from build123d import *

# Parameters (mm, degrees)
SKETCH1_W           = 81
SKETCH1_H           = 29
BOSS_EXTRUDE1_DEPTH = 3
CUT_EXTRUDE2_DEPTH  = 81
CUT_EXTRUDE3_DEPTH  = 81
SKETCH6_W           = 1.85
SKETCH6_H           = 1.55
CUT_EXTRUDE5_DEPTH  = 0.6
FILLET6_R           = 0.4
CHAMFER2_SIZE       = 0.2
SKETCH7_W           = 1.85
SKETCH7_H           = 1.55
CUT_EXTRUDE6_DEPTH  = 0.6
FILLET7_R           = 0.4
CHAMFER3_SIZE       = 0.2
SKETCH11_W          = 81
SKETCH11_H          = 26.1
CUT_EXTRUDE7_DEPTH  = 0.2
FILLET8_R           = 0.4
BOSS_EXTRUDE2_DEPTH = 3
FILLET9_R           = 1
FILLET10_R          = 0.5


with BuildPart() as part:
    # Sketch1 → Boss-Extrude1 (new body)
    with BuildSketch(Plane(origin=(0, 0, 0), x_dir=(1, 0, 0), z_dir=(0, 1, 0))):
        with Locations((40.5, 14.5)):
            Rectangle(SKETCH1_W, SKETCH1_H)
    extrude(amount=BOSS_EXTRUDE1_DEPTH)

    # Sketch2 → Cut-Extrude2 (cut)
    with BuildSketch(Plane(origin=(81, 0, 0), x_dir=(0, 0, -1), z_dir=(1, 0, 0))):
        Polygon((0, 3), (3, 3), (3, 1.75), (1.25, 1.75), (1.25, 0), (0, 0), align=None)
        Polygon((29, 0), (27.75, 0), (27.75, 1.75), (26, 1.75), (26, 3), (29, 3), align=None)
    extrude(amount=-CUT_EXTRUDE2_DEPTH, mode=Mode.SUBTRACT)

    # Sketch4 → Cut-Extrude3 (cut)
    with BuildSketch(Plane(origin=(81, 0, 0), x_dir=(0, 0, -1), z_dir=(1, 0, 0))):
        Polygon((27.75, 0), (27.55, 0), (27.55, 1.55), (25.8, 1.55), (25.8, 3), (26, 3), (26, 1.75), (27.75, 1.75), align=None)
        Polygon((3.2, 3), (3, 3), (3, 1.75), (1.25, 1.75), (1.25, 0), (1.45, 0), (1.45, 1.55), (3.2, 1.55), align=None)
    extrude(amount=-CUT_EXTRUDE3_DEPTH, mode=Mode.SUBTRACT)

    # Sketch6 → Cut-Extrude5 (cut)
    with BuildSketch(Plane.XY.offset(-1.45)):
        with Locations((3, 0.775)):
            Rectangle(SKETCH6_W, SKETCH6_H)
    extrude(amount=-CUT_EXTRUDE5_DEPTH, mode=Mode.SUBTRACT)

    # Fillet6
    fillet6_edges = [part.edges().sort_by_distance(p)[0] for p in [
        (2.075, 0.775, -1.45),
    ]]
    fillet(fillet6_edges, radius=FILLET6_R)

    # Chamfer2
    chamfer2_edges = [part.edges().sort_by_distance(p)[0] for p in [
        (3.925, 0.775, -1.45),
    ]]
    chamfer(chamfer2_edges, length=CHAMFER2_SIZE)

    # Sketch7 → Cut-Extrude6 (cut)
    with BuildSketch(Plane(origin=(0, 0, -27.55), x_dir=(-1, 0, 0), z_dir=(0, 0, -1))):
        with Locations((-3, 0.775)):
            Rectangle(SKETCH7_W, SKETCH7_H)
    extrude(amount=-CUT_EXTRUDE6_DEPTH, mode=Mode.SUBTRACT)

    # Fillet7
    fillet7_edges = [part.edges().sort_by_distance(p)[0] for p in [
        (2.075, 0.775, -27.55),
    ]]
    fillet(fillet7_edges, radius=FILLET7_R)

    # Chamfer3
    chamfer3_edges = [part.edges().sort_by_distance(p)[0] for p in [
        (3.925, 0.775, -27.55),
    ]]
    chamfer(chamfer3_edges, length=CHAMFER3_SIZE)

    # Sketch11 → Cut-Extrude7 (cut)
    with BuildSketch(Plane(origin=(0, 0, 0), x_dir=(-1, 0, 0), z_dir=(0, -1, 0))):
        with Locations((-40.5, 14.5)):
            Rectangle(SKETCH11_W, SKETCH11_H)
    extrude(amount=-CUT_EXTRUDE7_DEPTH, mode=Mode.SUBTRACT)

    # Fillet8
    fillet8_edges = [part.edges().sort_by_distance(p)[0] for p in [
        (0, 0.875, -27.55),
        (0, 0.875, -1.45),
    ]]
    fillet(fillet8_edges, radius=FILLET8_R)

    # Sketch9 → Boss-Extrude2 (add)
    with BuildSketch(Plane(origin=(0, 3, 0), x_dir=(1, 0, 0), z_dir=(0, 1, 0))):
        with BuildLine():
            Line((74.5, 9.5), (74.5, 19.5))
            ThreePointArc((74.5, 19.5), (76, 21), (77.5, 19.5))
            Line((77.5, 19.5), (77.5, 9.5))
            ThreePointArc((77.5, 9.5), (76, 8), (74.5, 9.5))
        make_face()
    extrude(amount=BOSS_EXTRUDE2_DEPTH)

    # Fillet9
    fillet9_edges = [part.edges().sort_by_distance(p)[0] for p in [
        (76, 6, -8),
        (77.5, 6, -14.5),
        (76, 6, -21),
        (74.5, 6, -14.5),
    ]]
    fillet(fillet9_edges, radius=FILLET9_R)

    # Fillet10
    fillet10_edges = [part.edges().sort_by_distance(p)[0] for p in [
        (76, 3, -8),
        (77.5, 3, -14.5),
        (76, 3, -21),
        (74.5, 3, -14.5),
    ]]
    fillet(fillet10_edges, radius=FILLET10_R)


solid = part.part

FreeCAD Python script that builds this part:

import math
import FreeCAD as App
import Part
import Sketcher
from FreeCAD import Vector
Q = App.Units.Quantity


def edges_at(feature, points):
    """Names of the edges that pass closest to the given points."""
    edges = feature.Shape.Edges
    near = lambda p: min(range(len(edges)), key=lambda i: edges[i].distToShape(Part.Vertex(*p))[0])
    return sorted({f"Edge{near(p) + 1}" for p in points})

doc = App.newDocument("Part")
params = doc.addObject("Spreadsheet::Sheet", "Params")
for row, (alias, value) in enumerate([
    ("sketch1_width", "81 mm"),
    ("sketch1_height", "29 mm"),
    ("pad1_length", "3 mm"),
    ("sketch2_width", "3 mm"),
    ("sketch2_width2", "1.75 mm"),
    ("pocket1_length", "81 mm"),
    ("sketch3_height", "0.2 mm"),
    ("sketch3_width", "1.75 mm"),
    ("sketch3_width2", "1.45 mm"),
    ("pocket2_length", "81 mm"),
    ("sketch4_width", "1.85 mm"),
    ("sketch4_height", "1.55 mm"),
    ("pocket3_length", "0.6 mm"),
    ("fillet_radius", "0.4 mm"),
    ("chamfer_size", "0.2 mm"),
    ("sketch5_width", "1.85 mm"),
    ("sketch5_height", "1.55 mm"),
    ("pocket4_length", "0.6 mm"),
    ("fillet2_radius", "0.4 mm"),
    ("chamfer2_size", "0.2 mm"),
    ("sketch6_width", "81 mm"),
    ("sketch6_height", "26.1 mm"),
    ("pocket5_length", "0.2 mm"),
    ("fillet3_radius", "0.4 mm"),
    ("sketch7_radius", "1.5 mm"),
    ("sketch7_height", "10 mm"),
    ("pad2_length", "3 mm"),
    ("fillet4_radius", "1 mm"),
    ("fillet5_radius", "0.5 mm"),
], start=1):
    params.set(f"A{row}", alias)
    params.set(f"B{row}", "=" + value)
    params.setAlias(f"B{row}", alias)

body = doc.addObject("PartDesign::Body", "Body")

# Sketch on XZ plane
sketch1 = doc.addObject("Sketcher::SketchObject", "Sketch")
body.addObject(sketch1)
sketch1.AttachmentSupport = (doc.XZ_Plane, [""])
sketch1.MapMode = "FlatFace"
sketch1.addGeometry(Part.LineSegment(Vector(0, -29, 0), Vector(0, 0, 0)), False)
sketch1.addGeometry(Part.LineSegment(Vector(0, 0, 0), Vector(81, 0, 0)), False)
sketch1.addGeometry(Part.LineSegment(Vector(81, 0, 0), Vector(81, -29, 0)), False)
sketch1.addGeometry(Part.LineSegment(Vector(81, -29, 0), Vector(0, -29, 0)), False)
sketch1.addConstraint(Sketcher.Constraint("Coincident", 0, 2, 1, 1))
sketch1.addConstraint(Sketcher.Constraint("Coincident", 1, 2, 2, 1))
sketch1.addConstraint(Sketcher.Constraint("Coincident", 2, 2, 3, 1))
sketch1.addConstraint(Sketcher.Constraint("Coincident", 3, 2, 0, 1))
sketch1.addConstraint(Sketcher.Constraint("Vertical", 0))
sketch1.addConstraint(Sketcher.Constraint("Horizontal", 1))
sketch1.addConstraint(Sketcher.Constraint("Vertical", 2))
sketch1.addConstraint(Sketcher.Constraint("Horizontal", 3))
sketch1.addConstraint(Sketcher.Constraint("Coincident", 0, 2, -1, 1))
sketch1.addConstraint(Sketcher.Constraint("DistanceX", 1, 1, 1, 2, Q("81 mm")))
sketch1.addConstraint(Sketcher.Constraint("DistanceY", 0, 1, 0, 2, Q("29 mm")))
sketch1.setExpression("Constraints[9]", "Params.sketch1_width")
sketch1.setExpression("Constraints[10]", "Params.sketch1_height")
pad1 = doc.addObject("PartDesign::Pad", "Pad")
body.addObject(pad1)
pad1.Profile = sketch1
pad1.setExpression("Length", "Params.pad1_length")
pad1.Reversed = True

# Sketch on YZ plane
sketch2 = doc.addObject("Sketcher::SketchObject", "Sketch001")
body.addObject(sketch2)
sketch2.AttachmentSupport = (doc.YZ_Plane, [""])
sketch2.MapMode = "FlatFace"
sketch2.AttachmentOffset = App.Placement(Vector(0, 0, 81), App.Rotation())
sketch2.addGeometry(Part.LineSegment(Vector(3, -3, 0), Vector(3, 0, 0)), False)
sketch2.addGeometry(Part.LineSegment(Vector(3, 0, 0), Vector(0, 0, 0)), False)
sketch2.addGeometry(Part.LineSegment(Vector(0, 0, 0), Vector(0, -1.25, 0)), False)
sketch2.addGeometry(Part.LineSegment(Vector(0, -1.25, 0), Vector(1.75, -1.25, 0)), False)
sketch2.addGeometry(Part.LineSegment(Vector(1.75, -1.25, 0), Vector(1.75, -3, 0)), False)
sketch2.addGeometry(Part.LineSegment(Vector(1.75, -3, 0), Vector(3, -3, 0)), False)
sketch2.addGeometry(Part.LineSegment(Vector(0, -27.75, 0), Vector(0, -29, 0)), False)
sketch2.addGeometry(Part.LineSegment(Vector(0, -29, 0), Vector(3, -29, 0)), False)
sketch2.addGeometry(Part.LineSegment(Vector(3, -29, 0), Vector(3, -26, 0)), False)
sketch2.addGeometry(Part.LineSegment(Vector(3, -26, 0), Vector(1.75, -26, 0)), False)
sketch2.addGeometry(Part.LineSegment(Vector(1.75, -26, 0), Vector(1.75, -27.75, 0)), False)
sketch2.addGeometry(Part.LineSegment(Vector(1.75, -27.75, 0), Vector(0, -27.75, 0)), False)
sketch2.addConstraint(Sketcher.Constraint("Coincident", 0, 2, 1, 1))
sketch2.addConstraint(Sketcher.Constraint("Coincident", 1, 2, 2, 1))
sketch2.addConstraint(Sketcher.Constraint("Coincident", 2, 2, 3, 1))
sketch2.addConstraint(Sketcher.Constraint("Coincident", 3, 2, 4, 1))
sketch2.addConstraint(Sketcher.Constraint("Coincident", 4, 2, 5, 1))
sketch2.addConstraint(Sketcher.Constraint("Coincident", 5, 2, 0, 1))
sketch2.addConstraint(Sketcher.Constraint("Coincident", 6, 2, 7, 1))
sketch2.addConstraint(Sketcher.Constraint("Coincident", 7, 2, 8, 1))
sketch2.addConstraint(Sketcher.Constraint("Coincident", 8, 2, 9, 1))
sketch2.addConstraint(Sketcher.Constraint("Coincident", 9, 2, 10, 1))
sketch2.addConstraint(Sketcher.Constraint("Coincident", 10, 2, 11, 1))
sketch2.addConstraint(Sketcher.Constraint("Coincident", 11, 2, 6, 1))
sketch2.addConstraint(Sketcher.Constraint("Vertical", 0))
sketch2.addConstraint(Sketcher.Constraint("Horizontal", 1))
sketch2.addConstraint(Sketcher.Constraint("Vertical", 2))
sketch2.addConstraint(Sketcher.Constraint("Horizontal", 3))
sketch2.addConstraint(Sketcher.Constraint("Vertical", 4))
sketch2.addConstraint(Sketcher.Constraint("Horizontal", 5))
sketch2.addConstraint(Sketcher.Constraint("Vertical", 6))
sketch2.addConstraint(Sketcher.Constraint("Horizontal", 7))
sketch2.addConstraint(Sketcher.Constraint("Vertical", 8))
sketch2.addConstraint(Sketcher.Constraint("Horizontal", 9))
sketch2.addConstraint(Sketcher.Constraint("Vertical", 10))
sketch2.addConstraint(Sketcher.Constraint("Horizontal", 11))
sketch2.addConstraint(Sketcher.Constraint("Coincident", 1, 2, -1, 1))
sketch2.addConstraint(Sketcher.Constraint("PointOnObject", 6, 2, -2))
sketch2.addConstraint(Sketcher.Constraint("Vertical", 5, 2, 7, 2))
sketch2.addConstraint(Sketcher.Constraint("Vertical", 4, 2, 9, 2))
sketch2.addConstraint(Sketcher.Constraint("Equal", 7, 0))
sketch2.addConstraint(Sketcher.Constraint("Equal", 9, 2))
sketch2.addConstraint(Sketcher.Constraint("Equal", 2, 6))
sketch2.addConstraint(Sketcher.Constraint("Equal", 0, 8))
sketch2.addConstraint(Sketcher.Constraint("DistanceX", 1, 2, 1, 1, Q("3 mm")))
sketch2.addConstraint(Sketcher.Constraint("DistanceY", 6, 2, -1, 1, Q("29 mm")))
sketch2.addConstraint(Sketcher.Constraint("DistanceX", 3, 1, 3, 2, Q("1.75 mm")))
sketch2.setExpression("Constraints[32]", "Params.sketch2_width")
sketch2.setExpression("Constraints[34]", "Params.sketch2_width2")
pocket1 = doc.addObject("PartDesign::Pocket", "Pocket")
body.addObject(pocket1)
pocket1.Profile = sketch2
pocket1.setExpression("Length", "Params.pocket1_length")

# Sketch on YZ plane
sketch3 = doc.addObject("Sketcher::SketchObject", "Sketch002")
body.addObject(sketch3)
sketch3.AttachmentSupport = (doc.YZ_Plane, [""])
sketch3.MapMode = "FlatFace"
sketch3.AttachmentOffset = App.Placement(Vector(0, 0, 81), App.Rotation())
sketch3.addGeometry(Part.LineSegment(Vector(0, -27.55, 0), Vector(0, -27.75, 0)), False)
sketch3.addGeometry(Part.LineSegment(Vector(0, -27.75, 0), Vector(1.75, -27.75, 0)), False)
sketch3.addGeometry(Part.LineSegment(Vector(1.75, -27.75, 0), Vector(1.75, -26, 0)), False)
sketch3.addGeometry(Part.LineSegment(Vector(1.75, -26, 0), Vector(3, -26, 0)), False)
sketch3.addGeometry(Part.LineSegment(Vector(3, -26, 0), Vector(3, -25.8, 0)), False)
sketch3.addGeometry(Part.LineSegment(Vector(3, -25.8, 0), Vector(1.55, -25.8, 0)), False)
sketch3.addGeometry(Part.LineSegment(Vector(1.55, -25.8, 0), Vector(1.55, -27.55, 0)), False)
sketch3.addGeometry(Part.LineSegment(Vector(1.55, -27.55, 0), Vector(0, -27.55, 0)), False)
sketch3.addGeometry(Part.LineSegment(Vector(3, -3.2, 0), Vector(3, -3, 0)), False)
sketch3.addGeometry(Part.LineSegment(Vector(3, -3, 0), Vector(1.75, -3, 0)), False)
sketch3.addGeometry(Part.LineSegment(Vector(1.75, -3, 0), Vector(1.75, -1.25, 0)), False)
sketch3.addGeometry(Part.LineSegment(Vector(1.75, -1.25, 0), Vector(0, -1.25, 0)), False)
sketch3.addGeometry(Part.LineSegment(Vector(0, -1.25, 0), Vector(0, -1.45, 0)), False)
sketch3.addGeometry(Part.LineSegment(Vector(0, -1.45, 0), Vector(1.55, -1.45, 0)), False)
sketch3.addGeometry(Part.LineSegment(Vector(1.55, -1.45, 0), Vector(1.55, -3.2, 0)), False)
sketch3.addGeometry(Part.LineSegment(Vector(1.55, -3.2, 0), Vector(3, -3.2, 0)), False)
sketch3.addConstraint(Sketcher.Constraint("Coincident", 0, 2, 1, 1))
sketch3.addConstraint(Sketcher.Constraint("Coincident", 1, 2, 2, 1))
sketch3.addConstraint(Sketcher.Constraint("Coincident", 2, 2, 3, 1))
sketch3.addConstraint(Sketcher.Constraint("Coincident", 3, 2, 4, 1))
sketch3.addConstraint(Sketcher.Constraint("Coincident", 4, 2, 5, 1))
sketch3.addConstraint(Sketcher.Constraint("Coincident", 5, 2, 6, 1))
sketch3.addConstraint(Sketcher.Constraint("Coincident", 6, 2, 7, 1))
sketch3.addConstraint(Sketcher.Constraint("Coincident", 7, 2, 0, 1))
sketch3.addConstraint(Sketcher.Constraint("Coincident", 8, 2, 9, 1))
sketch3.addConstraint(Sketcher.Constraint("Coincident", 9, 2, 10, 1))
sketch3.addConstraint(Sketcher.Constraint("Coincident", 10, 2, 11, 1))
sketch3.addConstraint(Sketcher.Constraint("Coincident", 11, 2, 12, 1))
sketch3.addConstraint(Sketcher.Constraint("Coincident", 12, 2, 13, 1))
sketch3.addConstraint(Sketcher.Constraint("Coincident", 13, 2, 14, 1))
sketch3.addConstraint(Sketcher.Constraint("Coincident", 14, 2, 15, 1))
sketch3.addConstraint(Sketcher.Constraint("Coincident", 15, 2, 8, 1))
sketch3.addConstraint(Sketcher.Constraint("Vertical", 0))
sketch3.addConstraint(Sketcher.Constraint("Horizontal", 1))
sketch3.addConstraint(Sketcher.Constraint("Vertical", 2))
sketch3.addConstraint(Sketcher.Constraint("Horizontal", 3))
sketch3.addConstraint(Sketcher.Constraint("Vertical", 4))
sketch3.addConstraint(Sketcher.Constraint("Horizontal", 5))
sketch3.addConstraint(Sketcher.Constraint("Vertical", 6))
sketch3.addConstraint(Sketcher.Constraint("Horizontal", 7))
sketch3.addConstraint(Sketcher.Constraint("Vertical", 8))
sketch3.addConstraint(Sketcher.Constraint("Horizontal", 9))
sketch3.addConstraint(Sketcher.Constraint("Vertical", 10))
sketch3.addConstraint(Sketcher.Constraint("Horizontal", 11))
sketch3.addConstraint(Sketcher.Constraint("Vertical", 12))
sketch3.addConstraint(Sketcher.Constraint("Horizontal", 13))
sketch3.addConstraint(Sketcher.Constraint("Vertical", 14))
sketch3.addConstraint(Sketcher.Constraint("Horizontal", 15))
sketch3.addConstraint(Sketcher.Constraint("PointOnObject", 0, 2, -2))
sketch3.addConstraint(Sketcher.Constraint("PointOnObject", 11, 2, -2))
sketch3.addConstraint(Sketcher.Constraint("Vertical", 4, 2, 8, 2))
sketch3.addConstraint(Sketcher.Constraint("Vertical", 2, 2, 9, 2))
sketch3.addConstraint(Sketcher.Constraint("Vertical", 6, 2, 13, 2))
sketch3.addConstraint(Sketcher.Constraint("Equal", 11, 2))
sketch3.addConstraint(Sketcher.Constraint("Equal", 0, 4))
sketch3.addConstraint(Sketcher.Constraint("Equal", 4, 8))
sketch3.addConstraint(Sketcher.Constraint("Equal", 6, 10))
sketch3.addConstraint(Sketcher.Constraint("Equal", 8, 12))
sketch3.addConstraint(Sketcher.Constraint("DistanceY", 0, 2, 0, 1, Q("0.2 mm")))
sketch3.addConstraint(Sketcher.Constraint("DistanceY", 2, 2, -1, 1, Q("26 mm")))
sketch3.addConstraint(Sketcher.Constraint("DistanceX", -1, 1, 3, 2, Q("3 mm")))
sketch3.addConstraint(Sketcher.Constraint("DistanceY", 8, 2, -1, 1, Q("3 mm")))
sketch3.addConstraint(Sketcher.Constraint("DistanceX", 1, 1, 1, 2, Q("1.75 mm")))
sketch3.addConstraint(Sketcher.Constraint("DistanceX", 5, 2, 5, 1, Q("1.45 mm")))
sketch3.setExpression("Constraints[42]", "Params.sketch3_height")
sketch3.setExpression("Constraints[46]", "Params.sketch3_width")
sketch3.setExpression("Constraints[47]", "Params.sketch3_width2")
pocket2 = doc.addObject("PartDesign::Pocket", "Pocket001")
body.addObject(pocket2)
pocket2.Profile = sketch3
pocket2.setExpression("Length", "Params.pocket2_length")

# Sketch on XY plane
sketch4 = doc.addObject("Sketcher::SketchObject", "Sketch003")
body.addObject(sketch4)
sketch4.AttachmentSupport = (doc.XY_Plane, [""])
sketch4.MapMode = "FlatFace"
sketch4.AttachmentOffset = App.Placement(Vector(0, 0, -1.45), App.Rotation())
sketch4.addGeometry(Part.LineSegment(Vector(2.075, 1.55, 0), Vector(2.075, 0, 0)), False)
sketch4.addGeometry(Part.LineSegment(Vector(2.075, 0, 0), Vector(3.925, 0, 0)), False)
sketch4.addGeometry(Part.LineSegment(Vector(3.925, 0, 0), Vector(3.925, 1.55, 0)), False)
sketch4.addGeometry(Part.LineSegment(Vector(3.925, 1.55, 0), Vector(2.075, 1.55, 0)), False)
sketch4.addConstraint(Sketcher.Constraint("Coincident", 0, 2, 1, 1))
sketch4.addConstraint(Sketcher.Constraint("Coincident", 1, 2, 2, 1))
sketch4.addConstraint(Sketcher.Constraint("Coincident", 2, 2, 3, 1))
sketch4.addConstraint(Sketcher.Constraint("Coincident", 3, 2, 0, 1))
sketch4.addConstraint(Sketcher.Constraint("Vertical", 0))
sketch4.addConstraint(Sketcher.Constraint("Horizontal", 1))
sketch4.addConstraint(Sketcher.Constraint("Vertical", 2))
sketch4.addConstraint(Sketcher.Constraint("Horizontal", 3))
sketch4.addConstraint(Sketcher.Constraint("PointOnObject", 0, 2, -1))
sketch4.addConstraint(Sketcher.Constraint("DistanceX", 1, 1, 1, 2, Q("1.85 mm")))
sketch4.addConstraint(Sketcher.Constraint("DistanceY", 0, 2, 0, 1, Q("1.55 mm")))
sketch4.addConstraint(Sketcher.Constraint("DistanceX", -1, 1, 0, 2, Q("2.075 mm")))
sketch4.setExpression("Constraints[9]", "Params.sketch4_width")
sketch4.setExpression("Constraints[10]", "Params.sketch4_height")
pocket3 = doc.addObject("PartDesign::Pocket", "Pocket002")
body.addObject(pocket3)
pocket3.Profile = sketch4
pocket3.setExpression("Length", "Params.pocket3_length")
doc.recompute()

fillet = doc.addObject("PartDesign::Fillet", "Fillet")
body.addObject(fillet)
fillet.Base = (pocket3, edges_at(pocket3, [(2.075, 0.775, -1.45)]))
fillet.setExpression("Radius", "Params.fillet_radius")
doc.recompute()

chamfer = doc.addObject("PartDesign::Chamfer", "Chamfer")
body.addObject(chamfer)
chamfer.Base = (fillet, edges_at(fillet, [(3.925, 0.775, -1.45)]))
chamfer.setExpression("Size", "Params.chamfer_size")

# Sketch on XY plane
sketch5 = doc.addObject("Sketcher::SketchObject", "Sketch004")
body.addObject(sketch5)
sketch5.AttachmentSupport = (doc.XY_Plane, [""])
sketch5.MapMode = "FlatFace"
sketch5.AttachmentOffset = App.Placement(Vector(0, 0, -27.55), App.Rotation())
sketch5.addGeometry(Part.LineSegment(Vector(3.925, 1.55, 0), Vector(3.925, 0, 0)), False)
sketch5.addGeometry(Part.LineSegment(Vector(3.925, 0, 0), Vector(2.075, 0, 0)), False)
sketch5.addGeometry(Part.LineSegment(Vector(2.075, 0, 0), Vector(2.075, 1.55, 0)), False)
sketch5.addGeometry(Part.LineSegment(Vector(2.075, 1.55, 0), Vector(3.925, 1.55, 0)), False)
sketch5.addConstraint(Sketcher.Constraint("Coincident", 0, 2, 1, 1))
sketch5.addConstraint(Sketcher.Constraint("Coincident", 1, 2, 2, 1))
sketch5.addConstraint(Sketcher.Constraint("Coincident", 2, 2, 3, 1))
sketch5.addConstraint(Sketcher.Constraint("Coincident", 3, 2, 0, 1))
sketch5.addConstraint(Sketcher.Constraint("Vertical", 0))
sketch5.addConstraint(Sketcher.Constraint("Horizontal", 1))
sketch5.addConstraint(Sketcher.Constraint("Vertical", 2))
sketch5.addConstraint(Sketcher.Constraint("Horizontal", 3))
sketch5.addConstraint(Sketcher.Constraint("PointOnObject", 0, 2, -1))
sketch5.addConstraint(Sketcher.Constraint("DistanceX", 1, 2, 1, 1, Q("1.85 mm")))
sketch5.addConstraint(Sketcher.Constraint("DistanceY", 0, 2, 0, 1, Q("1.55 mm")))
sketch5.addConstraint(Sketcher.Constraint("DistanceX", -1, 1, 0, 2, Q("3.925 mm")))
sketch5.setExpression("Constraints[9]", "Params.sketch5_width")
sketch5.setExpression("Constraints[10]", "Params.sketch5_height")
pocket4 = doc.addObject("PartDesign::Pocket", "Pocket003")
body.addObject(pocket4)
pocket4.Profile = sketch5
pocket4.setExpression("Length", "Params.pocket4_length")
pocket4.Reversed = True
doc.recompute()

fillet2 = doc.addObject("PartDesign::Fillet", "Fillet001")
body.addObject(fillet2)
fillet2.Base = (pocket4, edges_at(pocket4, [(2.075, 0.775, -27.55)]))
fillet2.setExpression("Radius", "Params.fillet2_radius")
doc.recompute()

chamfer2 = doc.addObject("PartDesign::Chamfer", "Chamfer001")
body.addObject(chamfer2)
chamfer2.Base = (fillet2, edges_at(fillet2, [(3.925, 0.775, -27.55)]))
chamfer2.setExpression("Size", "Params.chamfer2_size")

# Sketch on XZ plane
sketch6 = doc.addObject("Sketcher::SketchObject", "Sketch005")
body.addObject(sketch6)
sketch6.AttachmentSupport = (doc.XZ_Plane, [""])
sketch6.MapMode = "FlatFace"
sketch6.addGeometry(Part.LineSegment(Vector(81, -27.55, 0), Vector(81, -1.45, 0)), False)
sketch6.addGeometry(Part.LineSegment(Vector(81, -1.45, 0), Vector(0, -1.45, 0)), False)
sketch6.addGeometry(Part.LineSegment(Vector(0, -1.45, 0), Vector(0, -27.55, 0)), False)
sketch6.addGeometry(Part.LineSegment(Vector(0, -27.55, 0), Vector(81, -27.55, 0)), False)
sketch6.addConstraint(Sketcher.Constraint("Coincident", 0, 2, 1, 1))
sketch6.addConstraint(Sketcher.Constraint("Coincident", 1, 2, 2, 1))
sketch6.addConstraint(Sketcher.Constraint("Coincident", 2, 2, 3, 1))
sketch6.addConstraint(Sketcher.Constraint("Coincident", 3, 2, 0, 1))
sketch6.addConstraint(Sketcher.Constraint("Vertical", 0))
sketch6.addConstraint(Sketcher.Constraint("Horizontal", 1))
sketch6.addConstraint(Sketcher.Constraint("Vertical", 2))
sketch6.addConstraint(Sketcher.Constraint("Horizontal", 3))
sketch6.addConstraint(Sketcher.Constraint("PointOnObject", 1, 2, -2))
sketch6.addConstraint(Sketcher.Constraint("DistanceX", 1, 2, 1, 1, Q("81 mm")))
sketch6.addConstraint(Sketcher.Constraint("DistanceY", 0, 1, 0, 2, Q("26.1 mm")))
sketch6.addConstraint(Sketcher.Constraint("DistanceY", 0, 2, -1, 1, Q("1.45 mm")))
sketch6.setExpression("Constraints[9]", "Params.sketch6_width")
sketch6.setExpression("Constraints[10]", "Params.sketch6_height")
pocket5 = doc.addObject("PartDesign::Pocket", "Pocket004")
body.addObject(pocket5)
pocket5.Profile = sketch6
pocket5.setExpression("Length", "Params.pocket5_length")
doc.recompute()

fillet3 = doc.addObject("PartDesign::Fillet", "Fillet002")
body.addObject(fillet3)
fillet3.Base = (pocket5, edges_at(pocket5, [(0, 0.875, -27.55), (0, 0.875, -1.45)]))
fillet3.setExpression("Radius", "Params.fillet3_radius")

# Sketch on XZ plane
sketch7 = doc.addObject("Sketcher::SketchObject", "Sketch006")
body.addObject(sketch7)
sketch7.AttachmentSupport = (doc.XZ_Plane, [""])
sketch7.MapMode = "FlatFace"
sketch7.AttachmentOffset = App.Placement(Vector(0, 0, -3), App.Rotation())
sketch7.addGeometry(Part.LineSegment(Vector(74.5, -19.5, 0), Vector(74.5, -9.5, 0)), False)
sketch7.addGeometry(Part.ArcOfCircle(Part.Circle(Vector(76, -9.5, 0), Vector(0, 0, 1), 1.5), math.radians(0), math.radians(180)), False)
sketch7.addGeometry(Part.LineSegment(Vector(77.5, -9.5, 0), Vector(77.5, -19.5, 0)), False)
sketch7.addGeometry(Part.ArcOfCircle(Part.Circle(Vector(76, -19.5, 0), Vector(0, 0, 1), 1.5), math.radians(180), math.radians(360)), False)
sketch7.addConstraint(Sketcher.Constraint("Tangent", 0, 2, 1, 2))
sketch7.addConstraint(Sketcher.Constraint("Tangent", 1, 1, 2, 1))
sketch7.addConstraint(Sketcher.Constraint("Tangent", 2, 2, 3, 2))
sketch7.addConstraint(Sketcher.Constraint("Tangent", 3, 1, 0, 1))
sketch7.addConstraint(Sketcher.Constraint("Vertical", 0))
sketch7.addConstraint(Sketcher.Constraint("Vertical", 2))
sketch7.addConstraint(Sketcher.Constraint("Radius", 1, Q("1.5 mm")))
sketch7.addConstraint(Sketcher.Constraint("DistanceY", 0, 1, 0, 2, Q("10 mm")))
sketch7.addConstraint(Sketcher.Constraint("DistanceX", -1, 1, 1, 3, Q("76 mm")))
sketch7.addConstraint(Sketcher.Constraint("DistanceY", 1, 3, -1, 1, Q("9.5 mm")))
sketch7.setExpression("Constraints[6]", "Params.sketch7_radius")
sketch7.setExpression("Constraints[7]", "Params.sketch7_height")
pad2 = doc.addObject("PartDesign::Pad", "Pad001")
body.addObject(pad2)
pad2.Profile = sketch7
pad2.setExpression("Length", "Params.pad2_length")
pad2.Reversed = True
doc.recompute()

fillet4 = doc.addObject("PartDesign::Fillet", "Fillet003")
body.addObject(fillet4)
fillet4.Base = (pad2, edges_at(pad2, [
    (76, 6, -8),
    (77.5, 6, -14.5),
    (76, 6, -21),
    (74.5, 6, -14.5),
]))
fillet4.setExpression("Radius", "Params.fillet4_radius")
doc.recompute()

fillet5 = doc.addObject("PartDesign::Fillet", "Fillet004")
body.addObject(fillet5)
fillet5.Base = (fillet4, edges_at(fillet4, [
    (76, 3, -8),
    (77.5, 3, -14.5),
    (76, 3, -21),
    (74.5, 3, -14.5),
]))
fillet5.setExpression("Radius", "Params.fillet5_radius")

doc.recompute()
